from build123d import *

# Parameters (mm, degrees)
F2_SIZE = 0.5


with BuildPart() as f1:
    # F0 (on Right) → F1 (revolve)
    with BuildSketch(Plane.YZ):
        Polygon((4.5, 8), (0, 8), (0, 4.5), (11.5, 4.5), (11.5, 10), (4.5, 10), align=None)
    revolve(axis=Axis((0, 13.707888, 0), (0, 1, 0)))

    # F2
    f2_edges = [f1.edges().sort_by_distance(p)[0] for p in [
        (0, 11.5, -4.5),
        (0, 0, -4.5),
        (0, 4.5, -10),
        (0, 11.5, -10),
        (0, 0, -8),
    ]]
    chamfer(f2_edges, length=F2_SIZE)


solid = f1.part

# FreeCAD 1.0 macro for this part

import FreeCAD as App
import Part
import Sketcher

V = App.Vector
Q = App.Units.Quantity


def edges_at(feature, points):
    """Names of the edges that pass closest to the given points."""
    edges = feature.Shape.Edges
    near = lambda p: min(range(len(edges)), key=lambda i: edges[i].distToShape(Part.Vertex(*p))[0])
    return sorted({f"Edge{near(p) + 1}" for p in points})


def add_polygon(sketch, points):
    """Adds a closed chain of lines whose ends are joined by coincident constraints."""
    first, n = sketch.GeometryCount, len(points)
    for a, b in zip(points, points[1:] + points[:1]):
        sketch.addGeometry(Part.LineSegment(App.Vector(*a, 0), App.Vector(*b, 0)), False)
    for i in range(n):
        sketch.addConstraint(Sketcher.Constraint("Coincident", first + i, 2, first + (i + 1) % n, 1))

doc = App.newDocument("Part")
body = doc.addObject("PartDesign::Body", "Body")

# Sketch on YZ plane
sketch1 = body.newObject("Sketcher::SketchObject", "Sketch")
sketch1.AttachmentSupport = (doc.getObject("YZ_Plane"), [""])
sketch1.MapMode = "FlatFace"
add_polygon(sketch1, [(4.5, 8), (0, 8), (0, 4.5), (11.5, 4.5), (11.5, 10), (4.5, 10)])  # lines 0-5
sketch1.addConstraint(Sketcher.Constraint("Horizontal", 0))
sketch1.addConstraint(Sketcher.Constraint("Vertical", 1))
sketch1.addConstraint(Sketcher.Constraint("Horizontal", 2))
sketch1.addConstraint(Sketcher.Constraint("Vertical", 3))
sketch1.addConstraint(Sketcher.Constraint("Horizontal", 4))
sketch1.addConstraint(Sketcher.Constraint("Vertical", 5))
sketch1.addConstraint(Sketcher.Constraint("PointOnObject", 0, 2, -2))
sketch1.addConstraint(Sketcher.Constraint("DistanceX", 4, 2, 4, 1, Q("7 mm")))
sketch1.addConstraint(Sketcher.Constraint("DistanceY", 5, 2, 5, 1, Q("2 mm")))
sketch1.addConstraint(Sketcher.Constraint("DistanceX", 0, 2, 0, 1, Q("4.5 mm")))
sketch1.addConstraint(Sketcher.Constraint("DistanceY", 1, 2, 1, 1, Q("3.5 mm")))
sketch1.addConstraint(Sketcher.Constraint("DistanceY", -1, 1, 0, 2, Q("8 mm")))
revolution = body.newObject("PartDesign::Revolution", "Revolution")
revolution.Profile = sketch1
revolution.ReferenceAxis = (sketch1, ["H_Axis"])
revolution.Angle = 360
doc.recompute()

chamfer = body.newObject("PartDesign::Chamfer", "Chamfer")
chamfer.Base = (revolution, edges_at(revolution, [
    (0, 11.5, -4.5),
    (0, 0, -4.5),
    (0, 4.5, -10),
    (0, 11.5, -10),
    (0, 0, -8),
]))
chamfer.Size = 0.5

doc.recompute()
